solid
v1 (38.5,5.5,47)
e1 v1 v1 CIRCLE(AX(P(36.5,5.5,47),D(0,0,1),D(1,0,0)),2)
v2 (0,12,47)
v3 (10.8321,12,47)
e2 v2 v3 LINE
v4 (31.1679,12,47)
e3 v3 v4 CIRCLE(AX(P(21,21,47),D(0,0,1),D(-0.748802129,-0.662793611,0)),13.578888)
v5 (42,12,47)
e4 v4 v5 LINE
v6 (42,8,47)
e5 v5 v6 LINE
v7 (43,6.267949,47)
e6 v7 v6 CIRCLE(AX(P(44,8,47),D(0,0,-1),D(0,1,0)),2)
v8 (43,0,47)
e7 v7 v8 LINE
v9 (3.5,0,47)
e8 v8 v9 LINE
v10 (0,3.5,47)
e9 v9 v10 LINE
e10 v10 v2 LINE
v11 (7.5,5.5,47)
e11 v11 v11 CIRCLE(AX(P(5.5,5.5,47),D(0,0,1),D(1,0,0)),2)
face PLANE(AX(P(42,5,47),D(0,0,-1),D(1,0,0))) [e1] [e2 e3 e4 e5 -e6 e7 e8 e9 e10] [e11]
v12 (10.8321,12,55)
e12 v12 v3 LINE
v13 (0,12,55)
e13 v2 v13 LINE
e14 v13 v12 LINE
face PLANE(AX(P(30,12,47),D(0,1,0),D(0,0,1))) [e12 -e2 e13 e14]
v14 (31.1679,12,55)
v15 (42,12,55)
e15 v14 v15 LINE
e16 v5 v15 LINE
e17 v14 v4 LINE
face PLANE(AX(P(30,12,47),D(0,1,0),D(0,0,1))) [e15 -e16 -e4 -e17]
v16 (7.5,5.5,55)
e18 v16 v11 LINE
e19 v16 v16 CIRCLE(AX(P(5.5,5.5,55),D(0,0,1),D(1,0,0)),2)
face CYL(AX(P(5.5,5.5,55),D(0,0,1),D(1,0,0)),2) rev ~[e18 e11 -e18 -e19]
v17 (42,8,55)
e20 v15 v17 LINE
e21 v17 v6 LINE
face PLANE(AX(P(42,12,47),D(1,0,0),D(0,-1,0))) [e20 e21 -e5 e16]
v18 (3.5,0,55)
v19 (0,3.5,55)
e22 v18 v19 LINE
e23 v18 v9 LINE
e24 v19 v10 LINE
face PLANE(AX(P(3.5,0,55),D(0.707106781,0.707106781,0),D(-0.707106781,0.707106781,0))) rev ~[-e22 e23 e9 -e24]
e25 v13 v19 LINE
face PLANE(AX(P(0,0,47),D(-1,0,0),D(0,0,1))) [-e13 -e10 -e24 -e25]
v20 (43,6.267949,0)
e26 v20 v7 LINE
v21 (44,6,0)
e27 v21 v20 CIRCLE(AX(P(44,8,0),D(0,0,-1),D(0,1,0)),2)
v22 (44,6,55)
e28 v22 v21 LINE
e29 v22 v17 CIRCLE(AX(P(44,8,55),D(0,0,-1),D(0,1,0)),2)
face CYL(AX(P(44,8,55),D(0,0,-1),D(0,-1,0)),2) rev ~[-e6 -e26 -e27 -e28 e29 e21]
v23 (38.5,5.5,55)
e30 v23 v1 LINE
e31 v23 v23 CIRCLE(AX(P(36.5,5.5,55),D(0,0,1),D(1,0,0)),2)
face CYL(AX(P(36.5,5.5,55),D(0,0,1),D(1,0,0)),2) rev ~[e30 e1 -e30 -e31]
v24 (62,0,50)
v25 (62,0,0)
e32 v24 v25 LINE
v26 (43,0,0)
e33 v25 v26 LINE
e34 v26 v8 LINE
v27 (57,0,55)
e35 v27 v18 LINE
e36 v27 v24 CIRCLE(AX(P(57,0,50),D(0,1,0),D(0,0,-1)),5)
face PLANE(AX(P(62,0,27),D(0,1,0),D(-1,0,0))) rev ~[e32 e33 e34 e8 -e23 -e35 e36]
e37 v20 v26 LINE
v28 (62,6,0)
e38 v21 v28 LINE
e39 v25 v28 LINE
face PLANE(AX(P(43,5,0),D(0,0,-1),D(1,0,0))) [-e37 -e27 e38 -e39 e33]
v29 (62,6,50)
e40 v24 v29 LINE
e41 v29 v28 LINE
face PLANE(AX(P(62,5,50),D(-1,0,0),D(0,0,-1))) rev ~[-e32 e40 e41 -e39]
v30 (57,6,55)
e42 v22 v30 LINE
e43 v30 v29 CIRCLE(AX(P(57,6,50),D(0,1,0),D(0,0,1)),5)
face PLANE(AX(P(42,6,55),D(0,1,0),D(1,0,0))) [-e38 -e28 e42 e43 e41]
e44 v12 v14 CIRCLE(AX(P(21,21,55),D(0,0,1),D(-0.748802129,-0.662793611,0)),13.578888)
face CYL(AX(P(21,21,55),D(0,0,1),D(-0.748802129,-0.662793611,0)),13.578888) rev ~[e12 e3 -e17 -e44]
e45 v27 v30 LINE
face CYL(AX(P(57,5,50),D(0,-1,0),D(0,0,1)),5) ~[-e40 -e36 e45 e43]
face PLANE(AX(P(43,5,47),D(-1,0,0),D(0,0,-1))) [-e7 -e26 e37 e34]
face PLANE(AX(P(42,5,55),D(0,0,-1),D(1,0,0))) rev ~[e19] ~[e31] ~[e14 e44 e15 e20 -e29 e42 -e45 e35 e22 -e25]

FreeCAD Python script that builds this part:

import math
import FreeCAD as App
import Part
import Sketcher
Q = App.Units.Quantity


def edges_at(feature, points):
    """Names of the edges that pass closest to the given points."""
    edges = feature.Shape.Edges
    near = lambda p: min(range(len(edges)), key=lambda i: edges[i].distToShape(Part.Vertex(*p))[0])
    return sorted({f"Edge{near(p) + 1}" for p in points})


def add_polygon(sketch, points):
    """Adds a closed chain of lines whose ends are joined by coincident constraints."""
    first, n = sketch.GeometryCount, len(points)
    for a, b in zip(points, points[1:] + points[:1]):
        sketch.addGeometry(Part.LineSegment(App.Vector(*a, 0), App.Vector(*b, 0)), False)
    for i in range(n):
        sketch.addConstraint(Sketcher.Constraint("Coincident", first + i, 2, first + (i + 1) % n, 1))

doc = App.newDocument("Part")
body = doc.addObject("PartDesign::Body", "Body")

sketch1 = body.newObject("Sketcher::SketchObject", "Sketch")
sketch1.AttachmentSupport = (doc.getObject("XY_Plane"), [""])
sketch1.MapMode = "FlatFace"
sketch1.AttachmentOffset = App.Placement(App.Vector(0, 0, 47), App.Rotation())
add_polygon(sketch1, [(30, 0), (42, 0), (42, 12), (30, 12)])
sketch1.addConstraint(Sketcher.Constraint("Horizontal", 0))
sketch1.addConstraint(Sketcher.Constraint("Vertical", 1))
sketch1.addConstraint(Sketcher.Constraint("Horizontal", 2))
sketch1.addConstraint(Sketcher.Constraint("Vertical", 3))
sketch1.addConstraint(Sketcher.Constraint("PointOnObject", 0, 2, -1))
sketch1.addConstraint(Sketcher.Constraint("Equal", 2, 1))
sketch1.addConstraint(Sketcher.Constraint("DistanceX", 0, 1, 0, 2, Q("12 mm")))
sketch1.addConstraint(Sketcher.Constraint("DistanceX", -1, 1, 0, 2, Q("42 mm")))
pad1 = body.newObject("PartDesign::Pad", "Pad")
pad1.Profile = sketch1
pad1.Length = 8

sketch2 = body.newObject("Sketcher::SketchObject", "Sketch001")
sketch2.AttachmentSupport = (doc.getObject("YZ_Plane"), [""])
sketch2.MapMode = "FlatFace"
sketch2.AttachmentOffset = App.Placement(App.Vector(0, 0, 42), App.Rotation())
add_polygon(sketch2, [(5, 55), (0, 55), (0, 47), (5, 47)])
sketch2.addConstraint(Sketcher.Constraint("Horizontal", 0))
sketch2.addConstraint(Sketcher.Constraint("Vertical", 1))
sketch2.addConstraint(Sketcher.Constraint("Horizontal", 2))
sketch2.addConstraint(Sketcher.Constraint("Vertical", 3))
sketch2.addConstraint(Sketcher.Constraint("PointOnObject", 0, 2, -2))
sketch2.addConstraint(Sketcher.Constraint("DistanceX", 0, 2, 0, 1, Q("5 mm")))
sketch2.addConstraint(Sketcher.Constraint("DistanceY", 1, 2, 1, 1, Q("8 mm")))
sketch2.addConstraint(Sketcher.Constraint("DistanceY", -1, 1, 0, 2, Q("55 mm")))
pad2 = body.newObject("PartDesign::Pad", "Pad001")
pad2.Profile = sketch2
pad2.Length = 20

sketch3 = body.newObject("Sketcher::SketchObject", "Sketch002")
sketch3.AttachmentSupport = (doc.getObject("XY_Plane"), [""])
sketch3.MapMode = "FlatFace"
sketch3.AttachmentOffset = App.Placement(App.Vector(0, 0, 47), App.Rotation())
add_polygon(sketch3, [(43, 5), (62, 5), (62, 0), (43, 0)])
sketch3.addConstraint(Sketcher.Constraint("Horizontal", 0))
sketch3.addConstraint(Sketcher.Constraint("Vertical", 1))
sketch3.addConstraint(Sketcher.Constraint("Horizontal", 2))
sketch3.addConstraint(Sketcher.Constraint("Vertical", 3))
sketch3.addConstraint(Sketcher.Constraint("PointOnObject", 1, 2, -1))
sketch3.addConstraint(Sketcher.Constraint("DistanceX", 0, 1, 0, 2, Q("19 mm")))
sketch3.addConstraint(Sketcher.Constraint("DistanceY", 1, 2, 1, 1, Q("5 mm")))
sketch3.addConstraint(Sketcher.Constraint("DistanceX", -1, 1, 0, 2, Q("62 mm")))
pad3 = body.newObject("PartDesign::Pad", "Pad002")
pad3.Profile = sketch3
pad3.Length = 20
pad3.Reversed = True

sketch4 = body.newObject("Sketcher::SketchObject", "Sketch003")
sketch4.AttachmentSupport = (doc.getObject("XY_Plane"), [""])
sketch4.MapMode = "FlatFace"
sketch4.AttachmentOffset = App.Placement(App.Vector(0, 0, 55), App.Rotation())
sketch4.addGeometry(Part.Circle(App.Vector(36.5, 5.5, 0), App.Vector(0, 0, 1), 2), False)
sketch4.addConstraint(Sketcher.Constraint("Diameter", 0, Q("4 mm")))
sketch4.addConstraint(Sketcher.Constraint("DistanceX", -1, 1, 0, 3, Q("36.5 mm")))
sketch4.addConstraint(Sketcher.Constraint("DistanceY", -1, 1, 0, 3, Q("5.5 mm")))
pocket1 = body.newObject("PartDesign::Pocket", "Pocket")
pocket1.Profile = sketch4
pocket1.Length = 8

sketch5 = body.newObject("Sketcher::SketchObject", "Sketch004")
sketch5.AttachmentSupport = (doc.getObject("YZ_Plane"), [""])
sketch5.MapMode = "FlatFace"
sketch5.AttachmentOffset = App.Placement(App.Vector(0, 0, 30), App.Rotation())
add_polygon(sketch5, [(12, 47), (0, 47), (0, 55), (12, 55)])
sketch5.addConstraint(Sketcher.Constraint("Horizontal", 0))
sketch5.addConstraint(Sketcher.Constraint("Vertical", 1))
sketch5.addConstraint(Sketcher.Constraint("Horizontal", 2))
sketch5.addConstraint(Sketcher.Constraint("Vertical", 3))
sketch5.addConstraint(Sketcher.Constraint("PointOnObject", 0, 2, -2))
sketch5.addConstraint(Sketcher.Constraint("DistanceX", 0, 2, 0, 1, Q("12 mm")))
sketch5.addConstraint(Sketcher.Constraint("DistanceY", 1, 1, 1, 2, Q("8 mm")))
sketch5.addConstraint(Sketcher.Constraint("DistanceY", -1, 1, 0, 2, Q("47 mm")))
pad4 = body.newObject("PartDesign::Pad", "Pad003")
pad4.Profile = sketch5
pad4.Length = 30
pad4.Reversed = True

sketch6 = body.newObject("Sketcher::SketchObject", "Sketch005")
sketch6.AttachmentSupport = (doc.getObject("XY_Plane"), [""])
sketch6.MapMode = "FlatFace"
sketch6.AttachmentOffset = App.Placement(App.Vector(0, 0, 55), App.Rotation())
sketch6.addGeometry(Part.Circle(App.Vector(5.5, 5.5, 0), App.Vector(0, 0, 1), 2), False)
sketch6.addConstraint(Sketcher.Constraint("Diameter", 0, Q("4 mm")))
sketch6.addConstraint(Sketcher.Constraint("DistanceX", -1, 1, 0, 3, Q("5.5 mm")))
sketch6.addConstraint(Sketcher.Constraint("DistanceY", -1, 1, 0, 3, Q("5.5 mm")))
pocket2 = body.newObject("PartDesign::Pocket", "Pocket001")
pocket2.Profile = sketch6
pocket2.Length = 8

sketch7 = body.newObject("Sketcher::SketchObject", "Sketch006")
sketch7.AttachmentSupport = (doc.getObject("XY_Plane"), [""])
sketch7.MapMode = "FlatFace"
sketch7.AttachmentOffset = App.Placement(App.Vector(0, 0, 55), App.Rotation())
sketch7.addGeometry(Part.ArcOfCircle(Part.Circle(App.Vector(21, 21, 0), App.Vector(0, 0, 1), 14), math.radians(-138), math.radians(-42)), False)
sketch7.addGeometry(Part.LineSegment(App.Vector(31, 12, 0), App.Vector(11, 12, 0)), False)
sketch7.addConstraint(Sketcher.Constraint("Coincident", 0, 1, 1, 2))
sketch7.addConstraint(Sketcher.Constraint("Coincident", 1, 1, 0, 2))
sketch7.addConstraint(Sketcher.Constraint("Horizontal", 1))
sketch7.addConstraint(Sketcher.Constraint("DistanceX", -1, 1, 0, 3, Q("21 mm")))
sketch7.addConstraint(Sketcher.Constraint("DistanceY", -1, 1, 0, 3, Q("21 mm")))
sketch7.addConstraint(Sketcher.Constraint("DistanceY", -1, 1, 0, 1, Q("12 mm")))
sketch7.addConstraint(Sketcher.Constraint("Radius", 0, Q("13.579 mm")))
pocket3 = body.newObject("PartDesign::Pocket", "Pocket002")
pocket3.Profile = sketch7
pocket3.Length = 8

sketch8 = body.newObject("Sketcher::SketchObject", "Sketch007")
sketch8.AttachmentSupport = (doc.getObject("XY_Plane"), [""])
sketch8.MapMode = "FlatFace"
sketch8.AttachmentOffset = App.Placement(App.Vector(0, 0, 55), App.Rotation())
add_polygon(sketch8, [(3.5, 0), (0, 3.5), (0, 0)])
sketch8.addConstraint(Sketcher.Constraint("Vertical", 1))
sketch8.addConstraint(Sketcher.Constraint("Horizontal", 2))
sketch8.addConstraint(Sketcher.Constraint("Coincident", 1, 2, -1, 1))
sketch8.addConstraint(Sketcher.Constraint("Equal", 2, 1))
sketch8.addConstraint(Sketcher.Constraint("DistanceX", 2, 1, 2, 2, Q("3.5 mm")))
pocket4 = body.newObject("PartDesign::Pocket", "Pocket003")
pocket4.Profile = sketch8
pocket4.Length = 8
doc.recompute()

fillet = body.newObject("PartDesign::Fillet", "Fillet")
fillet.Base = (pocket4, edges_at(pocket4, [(62, 2.5, 55)]))
fillet.Radius = 5

sketch9 = body.newObject("Sketcher::SketchObject", "Sketch008")
sketch9.AttachmentSupport = (doc.getObject("XY_Plane"), [""])
sketch9.MapMode = "FlatFace"
sketch9.AttachmentOffset = App.Placement(App.Vector(0, 0, 27), App.Rotation())
add_polygon(sketch9, [(43, 5), (62, 5), (62, 0), (43, 0)])
sketch9.addConstraint(Sketcher.Constraint("Horizontal", 0))
sketch9.addConstraint(Sketcher.Constraint("Vertical", 1))
sketch9.addConstraint(Sketcher.Constraint("Horizontal", 2))
sketch9.addConstraint(Sketcher.Constraint("Vertical", 3))
sketch9.addConstraint(Sketcher.Constraint("PointOnObject", 1, 2, -1))
sketch9.addConstraint(Sketcher.Constraint("DistanceX", 0, 1, 0, 2, Q("19 mm")))
sketch9.addConstraint(Sketcher.Constraint("DistanceY", 1, 2, 1, 1, Q("5 mm")))
sketch9.addConstraint(Sketcher.Constraint("DistanceX", -1, 1, 0, 2, Q("62 mm")))
pad5 = body.newObject("PartDesign::Pad", "Pad004")
pad5.Profile = sketch9
pad5.Length = 27
pad5.Reversed = True

sketch10 = body.newObject("Sketcher::SketchObject", "Sketch009")
sketch10.AttachmentSupport = (doc.getObject("XZ_Plane"), [""])
sketch10.MapMode = "FlatFace"
sketch10.AttachmentOffset = App.Placement(App.Vector(0, 0, -5), App.Rotation())
sketch10.addGeometry(Part.LineSegment(App.Vector(42, 55, 0), App.Vector(57, 55, 0)), False)
sketch10.addGeometry(Part.ArcOfCircle(Part.Circle(App.Vector(57, 50, 0), App.Vector(0, 0, 1), 5), math.radians(0), math.radians(90)), False)
sketch10.addGeometry(Part.LineSegment(App.Vector(62, 50, 0), App.Vector(62, 0, 0)), False)
sketch10.addGeometry(Part.LineSegment(App.Vector(62, 0, 0), App.Vector(43, 0, 0)), False)
sketch10.addGeometry(Part.LineSegment(App.Vector(43, 0, 0), App.Vector(43, 47, 0)), False)
sketch10.addGeometry(Part.LineSegment(App.Vector(43, 47, 0), App.Vector(42, 47, 0)), False)
sketch10.addGeometry(Part.LineSegment(App.Vector(42, 47, 0), App.Vector(42, 55, 0)), False)
sketch10.addConstraint(Sketcher.Constraint("Tangent", 0, 2, 1, 2))
sketch10.addConstraint(Sketcher.Constraint("Tangent", 1, 1, 2, 1))
sketch10.addConstraint(Sketcher.Constraint("Coincident", 2, 2, 3, 1))
sketch10.addConstraint(Sketcher.Constraint("Coincident", 3, 2, 4, 1))
sketch10.addConstraint(Sketcher.Constraint("Coincident", 4, 2, 5, 1))
sketch10.addConstraint(Sketcher.Constraint("Coincident", 5, 2, 6, 1))
sketch10.addConstraint(Sketcher.Constraint("Coincident", 6, 2, 0, 1))
sketch10.addConstraint(Sketcher.Constraint("Horizontal", 0))
sketch10.addConstraint(Sketcher.Constraint("Vertical", 2))
sketch10.addConstraint(Sketcher.Constraint("Horizontal", 3))
sketch10.addConstraint(Sketcher.Constraint("Vertical", 4))
sketch10.addConstraint(Sketcher.Constraint("Horizontal", 5))
sketch10.addConstraint(Sketcher.Constraint("Vertical", 6))
sketch10.addConstraint(Sketcher.Constraint("PointOnObject", 2, 2, -1))
sketch10.addConstraint(Sketcher.Constraint("Radius", 1, Q("5 mm")))
sketch10.addConstraint(Sketcher.Constraint("DistanceX", 0, 1, 0, 2, Q("15 mm")))
sketch10.addConstraint(Sketcher.Constraint("DistanceX", 3, 2, 3, 1, Q("19 mm")))
sketch10.addConstraint(Sketcher.Constraint("DistanceY", 2, 2, 2, 1, Q("50 mm")))
sketch10.addConstraint(Sketcher.Constraint("DistanceY", 4, 1, 4, 2, Q("47 mm")))
sketch10.addConstraint(Sketcher.Constraint("DistanceX", -1, 1, 1, 3, Q("57 mm")))
pad6 = body.newObject("PartDesign::Pad", "Pad005")
pad6.Profile = sketch10
pad6.Length = 1
pad6.Reversed = True
doc.recompute()

fillet2 = body.newObject("PartDesign::Fillet", "Fillet001")
fillet2.Base = (pad6, edges_at(pad6, [(42, 6, 51)]))
fillet2.Radius = 2

doc.recompute()
